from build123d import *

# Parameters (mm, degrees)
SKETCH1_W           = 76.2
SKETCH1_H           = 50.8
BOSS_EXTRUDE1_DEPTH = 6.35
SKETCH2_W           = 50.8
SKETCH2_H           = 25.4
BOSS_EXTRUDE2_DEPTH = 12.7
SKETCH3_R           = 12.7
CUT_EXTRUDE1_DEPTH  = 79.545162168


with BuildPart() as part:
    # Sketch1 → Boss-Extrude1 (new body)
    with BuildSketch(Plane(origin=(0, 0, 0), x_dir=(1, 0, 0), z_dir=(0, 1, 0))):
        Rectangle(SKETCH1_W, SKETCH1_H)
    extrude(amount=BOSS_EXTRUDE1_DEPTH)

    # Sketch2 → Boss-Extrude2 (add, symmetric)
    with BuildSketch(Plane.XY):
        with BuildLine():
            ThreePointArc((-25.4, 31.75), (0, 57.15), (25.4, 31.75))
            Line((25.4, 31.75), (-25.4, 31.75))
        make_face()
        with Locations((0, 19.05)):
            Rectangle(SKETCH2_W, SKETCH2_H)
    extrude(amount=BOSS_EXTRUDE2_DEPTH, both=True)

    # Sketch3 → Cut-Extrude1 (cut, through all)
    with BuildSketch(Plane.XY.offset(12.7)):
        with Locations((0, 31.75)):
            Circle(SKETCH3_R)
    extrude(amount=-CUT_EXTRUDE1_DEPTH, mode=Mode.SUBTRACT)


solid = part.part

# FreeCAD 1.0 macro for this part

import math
import FreeCAD as App
import Part
import Sketcher
Q = App.Units.Quantity


def add_polygon(sketch, points):
    """Adds a closed chain of lines whose ends are joined by coincident constraints."""
    first, n = sketch.GeometryCount, len(points)
    for a, b in zip(points, points[1:] + points[:1]):
        sketch.addGeometry(Part.LineSegment(App.Vector(*a, 0), App.Vector(*b, 0)), False)
    for i in range(n):
        sketch.addConstraint(Sketcher.Constraint("Coincident", first + i, 2, first + (i + 1) % n, 1))

doc = App.newDocument("Part")
body = doc.addObject("PartDesign::Body", "Body")

sketch1 = body.newObject("Sketcher::SketchObject", "Sketch")
sketch1.AttachmentSupport = (doc.getObject("XZ_Plane"), [""])
sketch1.MapMode = "FlatFace"
add_polygon(sketch1, [(-38, -25), (-38, 25), (38, 25), (38, -25)])
sketch1.addConstraint(Sketcher.Constraint("Vertical", 0))
sketch1.addConstraint(Sketcher.Constraint("Horizontal", 1))
sketch1.addConstraint(Sketcher.Constraint("Vertical", 2))
sketch1.addConstraint(Sketcher.Constraint("Horizontal", 3))
sketch1.addConstraint(Sketcher.Constraint("Symmetric", 0, 2, 2, 2, -1, 1))
sketch1.addConstraint(Sketcher.Constraint("DistanceX", 1, 1, 1, 2, Q("3 in")))
sketch1.addConstraint(Sketcher.Constraint("DistanceY", 0, 1, 0, 2, Q("2 in")))
pad1 = body.newObject("PartDesign::Pad", "Pad")
pad1.Profile = sketch1
pad1.Length = Q("0.25 in")
pad1.Reversed = True

sketch2 = body.newObject("Sketcher::SketchObject", "Sketch001")
sketch2.AttachmentSupport = (doc.getObject("XY_Plane"), [""])
sketch2.MapMode = "FlatFace"
sketch2.addGeometry(Part.ArcOfCircle(Part.Circle(App.Vector(0, 32, 0), App.Vector(0, 0, 1), 25), math.radians(0), math.radians(180)), False)
sketch2.addGeometry(Part.LineSegment(App.Vector(-25, 32, 0), App.Vector(-25, 6, 0)), False)
sketch2.addGeometry(Part.LineSegment(App.Vector(-25, 6, 0), App.Vector(25, 6, 0)), False)
sketch2.addGeometry(Part.LineSegment(App.Vector(25, 6, 0), App.Vector(25, 32, 0)), False)
sketch2.addConstraint(Sketcher.Constraint("Tangent", 0, 2, 1, 1))
sketch2.addConstraint(Sketcher.Constraint("Coincident", 1, 2, 2, 1))
sketch2.addConstraint(Sketcher.Constraint("Coincident", 2, 2, 3, 1))
sketch2.addConstraint(Sketcher.Constraint("Tangent", 3, 2, 0, 1))
sketch2.addConstraint(Sketcher.Constraint("Vertical", 1))
sketch2.addConstraint(Sketcher.Constraint("Horizontal", 2))
sketch2.addConstraint(Sketcher.Constraint("Vertical", 3))
sketch2.addConstraint(Sketcher.Constraint("PointOnObject", 0, 3, -2))
sketch2.addConstraint(Sketcher.Constraint("Radius", 0, Q("1 in")))
sketch2.addConstraint(Sketcher.Constraint("DistanceY", 1, 2, 1, 1, Q("1 in")))
sketch2.addConstraint(Sketcher.Constraint("DistanceY", -1, 1, 0, 3, Q("1.25 in")))
pad2 = body.newObject("PartDesign::Pad", "Pad001")
pad2.Profile = sketch2
pad2.Length = Q("1 in")
pad2.Midplane = True

sketch3 = body.newObject("Sketcher::SketchObject", "Sketch002")
sketch3.AttachmentSupport = (doc.getObject("XY_Plane"), [""])
sketch3.MapMode = "FlatFace"
sketch3.AttachmentOffset = App.Placement(App.Vector(0, 0, 0.5 * 25.4), App.Rotation())
sketch3.addGeometry(Part.Circle(App.Vector(0, 32, 0), App.Vector(0, 0, 1), 13), False)
sketch3.addConstraint(Sketcher.Constraint("PointOnObject", 0, 3, -2))
sketch3.addConstraint(Sketcher.Constraint("Diameter", 0, Q("1 in")))
sketch3.addConstraint(Sketcher.Constraint("DistanceY", -1, 1, 0, 3, Q("1.25 in")))
pocket1 = body.newObject("PartDesign::Pocket", "Pocket")
pocket1.Profile = sketch3
pocket1.Type = "ThroughAll"

doc.recompute()
